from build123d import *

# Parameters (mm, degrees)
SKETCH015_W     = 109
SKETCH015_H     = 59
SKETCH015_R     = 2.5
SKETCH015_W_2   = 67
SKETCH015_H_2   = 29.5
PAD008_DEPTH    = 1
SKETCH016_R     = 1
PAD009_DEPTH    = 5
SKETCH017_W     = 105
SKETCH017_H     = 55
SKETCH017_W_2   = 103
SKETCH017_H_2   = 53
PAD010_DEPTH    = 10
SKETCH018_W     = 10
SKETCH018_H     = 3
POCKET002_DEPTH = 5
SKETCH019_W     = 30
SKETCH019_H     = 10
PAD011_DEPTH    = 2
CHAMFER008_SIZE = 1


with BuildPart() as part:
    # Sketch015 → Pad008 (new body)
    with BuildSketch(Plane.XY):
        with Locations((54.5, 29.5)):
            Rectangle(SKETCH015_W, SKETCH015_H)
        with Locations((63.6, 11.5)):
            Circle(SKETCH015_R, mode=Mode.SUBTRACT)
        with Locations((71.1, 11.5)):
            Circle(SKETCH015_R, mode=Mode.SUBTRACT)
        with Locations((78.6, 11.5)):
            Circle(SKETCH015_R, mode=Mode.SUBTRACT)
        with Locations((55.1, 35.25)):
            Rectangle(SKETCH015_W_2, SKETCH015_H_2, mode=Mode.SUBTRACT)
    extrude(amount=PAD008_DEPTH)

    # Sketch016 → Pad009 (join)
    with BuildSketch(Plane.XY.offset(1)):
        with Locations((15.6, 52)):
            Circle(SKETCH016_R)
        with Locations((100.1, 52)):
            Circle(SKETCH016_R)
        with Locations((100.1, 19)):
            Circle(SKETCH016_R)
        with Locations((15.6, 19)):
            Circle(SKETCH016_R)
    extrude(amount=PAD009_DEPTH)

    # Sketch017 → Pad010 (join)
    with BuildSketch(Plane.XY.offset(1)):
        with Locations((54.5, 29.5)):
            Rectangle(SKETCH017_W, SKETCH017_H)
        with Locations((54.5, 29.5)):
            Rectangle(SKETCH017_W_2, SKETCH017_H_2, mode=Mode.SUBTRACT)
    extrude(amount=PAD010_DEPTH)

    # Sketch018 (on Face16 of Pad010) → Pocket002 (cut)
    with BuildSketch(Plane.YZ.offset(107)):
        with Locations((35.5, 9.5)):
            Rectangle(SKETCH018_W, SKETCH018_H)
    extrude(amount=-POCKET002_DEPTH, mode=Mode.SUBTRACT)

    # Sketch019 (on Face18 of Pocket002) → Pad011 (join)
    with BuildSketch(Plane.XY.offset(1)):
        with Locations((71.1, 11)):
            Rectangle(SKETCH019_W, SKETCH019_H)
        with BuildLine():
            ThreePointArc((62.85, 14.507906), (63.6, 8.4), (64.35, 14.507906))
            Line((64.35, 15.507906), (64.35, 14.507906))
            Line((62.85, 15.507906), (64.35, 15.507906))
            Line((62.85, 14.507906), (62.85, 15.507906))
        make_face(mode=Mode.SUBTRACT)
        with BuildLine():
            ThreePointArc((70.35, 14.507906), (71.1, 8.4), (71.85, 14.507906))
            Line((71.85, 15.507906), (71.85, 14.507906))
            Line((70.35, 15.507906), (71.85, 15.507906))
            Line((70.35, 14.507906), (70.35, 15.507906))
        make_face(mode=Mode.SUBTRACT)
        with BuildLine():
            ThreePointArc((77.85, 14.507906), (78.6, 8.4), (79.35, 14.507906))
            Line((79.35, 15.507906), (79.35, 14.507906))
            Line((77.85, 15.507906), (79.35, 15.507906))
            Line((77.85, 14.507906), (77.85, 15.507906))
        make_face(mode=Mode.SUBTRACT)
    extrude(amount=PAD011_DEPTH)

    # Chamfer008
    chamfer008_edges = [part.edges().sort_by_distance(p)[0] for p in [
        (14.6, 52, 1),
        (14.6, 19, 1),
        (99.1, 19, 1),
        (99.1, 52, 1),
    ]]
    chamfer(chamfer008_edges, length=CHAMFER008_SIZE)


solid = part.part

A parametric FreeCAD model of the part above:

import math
import FreeCAD as App
import Part
import Sketcher


def edges_at(feature, points):
    """Names of the edges that pass closest to the given points."""
    edges = feature.Shape.Edges
    near = lambda p: min(range(len(edges)), key=lambda i: edges[i].distToShape(Part.Vertex(*p))[0])
    return sorted({f"Edge{near(p) + 1}" for p in points})

doc = App.newDocument("Part")
body = doc.addObject("PartDesign::Body", "Body")

# Sketch on XY plane
sketch1 = body.newObject("Sketcher::SketchObject", "Sketch")
sketch1.AttachmentSupport = (doc.getObject("XY_Plane"), [""])
sketch1.MapMode = "FlatFace"
sketch1.addGeometry(Part.LineSegment(App.Vector(0, 59, 0), App.Vector(0, 0, 0)), False)
sketch1.addGeometry(Part.LineSegment(App.Vector(0, 0, 0), App.Vector(109, 0, 0)), False)
sketch1.addGeometry(Part.LineSegment(App.Vector(109, 0, 0), App.Vector(109, 59, 0)), False)
sketch1.addGeometry(Part.LineSegment(App.Vector(109, 59, 0), App.Vector(0, 59, 0)), False)
sketch1.addGeometry(Part.Circle(App.Vector(63.6, 11.5, 0), App.Vector(0, 0, 1), 2.5), False)
sketch1.addGeometry(Part.Circle(App.Vector(71.1, 11.5, 0), App.Vector(0, 0, 1), 2.5), False)
sketch1.addGeometry(Part.Circle(App.Vector(78.6, 11.5, 0), App.Vector(0, 0, 1), 2.5), False)
sketch1.addGeometry(Part.LineSegment(App.Vector(88.6, 20.5, 0), App.Vector(21.6, 20.5, 0)), False)
sketch1.addGeometry(Part.LineSegment(App.Vector(21.6, 20.5, 0), App.Vector(21.6, 50, 0)), False)
sketch1.addGeometry(Part.LineSegment(App.Vector(21.6, 50, 0), App.Vector(88.6, 50, 0)), False)
sketch1.addGeometry(Part.LineSegment(App.Vector(88.6, 50, 0), App.Vector(88.6, 20.5, 0)), False)
sketch1.addConstraint(Sketcher.Constraint("Coincident", 0, 2, 1, 1))
sketch1.addConstraint(Sketcher.Constraint("Coincident", 1, 2, 2, 1))
sketch1.addConstraint(Sketcher.Constraint("Coincident", 2, 2, 3, 1))
sketch1.addConstraint(Sketcher.Constraint("Coincident", 3, 2, 0, 1))
sketch1.addConstraint(Sketcher.Constraint("Coincident", 7, 2, 8, 1))
sketch1.addConstraint(Sketcher.Constraint("Coincident", 8, 2, 9, 1))
sketch1.addConstraint(Sketcher.Constraint("Coincident", 9, 2, 10, 1))
sketch1.addConstraint(Sketcher.Constraint("Coincident", 10, 2, 7, 1))
sketch1.addConstraint(Sketcher.Constraint("Vertical", 0))
sketch1.addConstraint(Sketcher.Constraint("Horizontal", 1))
sketch1.addConstraint(Sketcher.Constraint("Vertical", 2))
sketch1.addConstraint(Sketcher.Constraint("Horizontal", 3))
sketch1.addConstraint(Sketcher.Constraint("Horizontal", 7))
sketch1.addConstraint(Sketcher.Constraint("Vertical", 8))
sketch1.addConstraint(Sketcher.Constraint("Horizontal", 9))
sketch1.addConstraint(Sketcher.Constraint("Vertical", 10))
sketch1.addConstraint(Sketcher.Constraint("Coincident", 0, 2, -1, 1))
sketch1.addConstraint(Sketcher.Constraint("Equal", 4, 5))
sketch1.addConstraint(Sketcher.Constraint("Equal", 5, 6))
sketch1.addConstraint(Sketcher.Constraint("Horizontal", 4, 3, 5, 3))
sketch1.addConstraint(Sketcher.Constraint("Horizontal", 5, 3, 6, 3))
sketch1.addConstraint(Sketcher.Constraint("Diameter", 4, 5.0))
sketch1.addConstraint(Sketcher.Constraint("DistanceX", 1, 1, 1, 2, 109.0))
sketch1.addConstraint(Sketcher.Constraint("DistanceX", 7, 2, 7, 1, 67.0))
sketch1.addConstraint(Sketcher.Constraint("DistanceY", 0, 2, 0, 1, 59.0))
sketch1.addConstraint(Sketcher.Constraint("DistanceY", 8, 1, 8, 2, 29.5))
sketch1.addConstraint(Sketcher.Constraint("DistanceY", -1, 1, 8, 2, 50.0))
sketch1.addConstraint(Sketcher.Constraint("DistanceX", 4, 3, 6, 3, 15.0))
sketch1.addConstraint(Sketcher.Constraint("DistanceX", 7, 2, 4, 3, 42.0))
sketch1.addConstraint(Sketcher.Constraint("DistanceY", 4, 3, 7, 2, 9.0))
sketch1.addConstraint(Sketcher.Constraint("DistanceX", -1, 1, 4, 3, 63.6))
sketch1.addConstraint(Sketcher.Constraint("DistanceX", -1, 1, 5, 3, 71.1))
pad1 = body.newObject("PartDesign::Pad", "Pad")
pad1.Profile = sketch1
pad1.Length = 1

# Sketch on XY plane
sketch2 = body.newObject("Sketcher::SketchObject", "Sketch001")
sketch2.AttachmentSupport = (doc.getObject("XY_Plane"), [""])
sketch2.MapMode = "FlatFace"
sketch2.AttachmentOffset = App.Placement(App.Vector(0, 0, 1), App.Rotation())
sketch2.addGeometry(Part.Circle(App.Vector(15.6, 52, 0), App.Vector(0, 0, 1), 1), False)
sketch2.addGeometry(Part.Circle(App.Vector(100.1, 52, 0), App.Vector(0, 0, 1), 1), False)
sketch2.addGeometry(Part.Circle(App.Vector(100.1, 19, 0), App.Vector(0, 0, 1), 1), False)
sketch2.addGeometry(Part.Circle(App.Vector(15.6, 19, 0), App.Vector(0, 0, 1), 1), False)
sketch2.addConstraint(Sketcher.Constraint("Equal", 0, 1))
sketch2.addConstraint(Sketcher.Constraint("Equal", 1, 2))
sketch2.addConstraint(Sketcher.Constraint("Equal", 2, 3))
sketch2.addConstraint(Sketcher.Constraint("Horizontal", 0, 3, 1, 3))
sketch2.addConstraint(Sketcher.Constraint("Horizontal", 2, 3, 3, 3))
sketch2.addConstraint(Sketcher.Constraint("Vertical", 1, 3, 2, 3))
sketch2.addConstraint(Sketcher.Constraint("Vertical", 0, 3, 3, 3))
sketch2.addConstraint(Sketcher.Constraint("Diameter", 0, 2.0))
sketch2.addConstraint(Sketcher.Constraint("DistanceY", -1, 1, 0, 3, 52.0))
sketch2.addConstraint(Sketcher.Constraint("DistanceY", -1, 1, 2, 3, 19.0))
sketch2.addConstraint(Sketcher.Constraint("DistanceX", -1, 1, 0, 3, 15.6))
sketch2.addConstraint(Sketcher.Constraint("DistanceX", -1, 1, 1, 3, 100.1))
pad2 = body.newObject("PartDesign::Pad", "Pad001")
pad2.Profile = sketch2
pad2.Length = 5

# Sketch on XY plane
sketch3 = body.newObject("Sketcher::SketchObject", "Sketch002")
sketch3.AttachmentSupport = (doc.getObject("XY_Plane"), [""])
sketch3.MapMode = "FlatFace"
sketch3.AttachmentOffset = App.Placement(App.Vector(0, 0, 1), App.Rotation())
sketch3.addGeometry(Part.LineSegment(App.Vector(2, 57, 0), App.Vector(2, 2, 0)), False)
sketch3.addGeometry(Part.LineSegment(App.Vector(2, 2, 0), App.Vector(107, 2, 0)), False)
sketch3.addGeometry(Part.LineSegment(App.Vector(107, 2, 0), App.Vector(107, 57, 0)), False)
sketch3.addGeometry(Part.LineSegment(App.Vector(107, 57, 0), App.Vector(2, 57, 0)), False)
sketch3.addGeometry(Part.LineSegment(App.Vector(106, 3, 0), App.Vector(3, 3, 0)), False)
sketch3.addGeometry(Part.LineSegment(App.Vector(3, 3, 0), App.Vector(3, 56, 0)), False)
sketch3.addGeometry(Part.LineSegment(App.Vector(3, 56, 0), App.Vector(106, 56, 0)), False)
sketch3.addGeometry(Part.LineSegment(App.Vector(106, 56, 0), App.Vector(106, 3, 0)), False)
sketch3.addConstraint(Sketcher.Constraint("Coincident", 0, 2, 1, 1))
sketch3.addConstraint(Sketcher.Constraint("Coincident", 1, 2, 2, 1))
sketch3.addConstraint(Sketcher.Constraint("Coincident", 2, 2, 3, 1))
sketch3.addConstraint(Sketcher.Constraint("Coincident", 3, 2, 0, 1))
sketch3.addConstraint(Sketcher.Constraint("Coincident", 4, 2, 5, 1))
sketch3.addConstraint(Sketcher.Constraint("Coincident", 5, 2, 6, 1))
sketch3.addConstraint(Sketcher.Constraint("Coincident", 6, 2, 7, 1))
sketch3.addConstraint(Sketcher.Constraint("Coincident", 7, 2, 4, 1))
sketch3.addConstraint(Sketcher.Constraint("Vertical", 0))
sketch3.addConstraint(Sketcher.Constraint("Horizontal", 1))
sketch3.addConstraint(Sketcher.Constraint("Vertical", 2))
sketch3.addConstraint(Sketcher.Constraint("Horizontal", 3))
sketch3.addConstraint(Sketcher.Constraint("Horizontal", 4))
sketch3.addConstraint(Sketcher.Constraint("Vertical", 5))
sketch3.addConstraint(Sketcher.Constraint("Horizontal", 6))
sketch3.addConstraint(Sketcher.Constraint("Vertical", 7))
sketch3.addConstraint(Sketcher.Constraint("DistanceX", 1, 1, 1, 2, 105.0))
sketch3.addConstraint(Sketcher.Constraint("DistanceX", 4, 2, 4, 1, 103.0))
sketch3.addConstraint(Sketcher.Constraint("DistanceY", 0, 2, 0, 1, 55.0))
sketch3.addConstraint(Sketcher.Constraint("DistanceY", 5, 1, 5, 2, 53.0))
sketch3.addConstraint(Sketcher.Constraint("DistanceX", -1, 1, 0, 2, 2.0))
sketch3.addConstraint(Sketcher.Constraint("DistanceY", -1, 1, 0, 2, 2.0))
sketch3.addConstraint(Sketcher.Constraint("DistanceX", -1, 1, 4, 2, 3.0))
sketch3.addConstraint(Sketcher.Constraint("DistanceY", -1, 1, 4, 2, 3.0))
pad3 = body.newObject("PartDesign::Pad", "Pad002")
pad3.Profile = sketch3
pad3.Length = 10

# Sketch on YZ plane
sketch4 = body.newObject("Sketcher::SketchObject", "Sketch003")
sketch4.AttachmentSupport = (doc.getObject("YZ_Plane"), [""])
sketch4.MapMode = "FlatFace"
sketch4.AttachmentOffset = App.Placement(App.Vector(0, 0, 107), App.Rotation())
sketch4.addGeometry(Part.LineSegment(App.Vector(30.5, 11, 0), App.Vector(30.5, 8, 0)), False)
sketch4.addGeometry(Part.LineSegment(App.Vector(30.5, 8, 0), App.Vector(40.5, 8, 0)), False)
sketch4.addGeometry(Part.LineSegment(App.Vector(40.5, 8, 0), App.Vector(40.5, 11, 0)), False)
sketch4.addGeometry(Part.LineSegment(App.Vector(40.5, 11, 0), App.Vector(30.5, 11, 0)), False)
sketch4.addConstraint(Sketcher.Constraint("Coincident", 0, 2, 1, 1))
sketch4.addConstraint(Sketcher.Constraint("Coincident", 1, 2, 2, 1))
sketch4.addConstraint(Sketcher.Constraint("Coincident", 2, 2, 3, 1))
sketch4.addConstraint(Sketcher.Constraint("Coincident", 3, 2, 0, 1))
sketch4.addConstraint(Sketcher.Constraint("Vertical", 0))
sketch4.addConstraint(Sketcher.Constraint("Horizontal", 1))
sketch4.addConstraint(Sketcher.Constraint("Vertical", 2))
sketch4.addConstraint(Sketcher.Constraint("Horizontal", 3))
sketch4.addConstraint(Sketcher.Constraint("DistanceX", 1, 1, 1, 2, 10.0))
sketch4.addConstraint(Sketcher.Constraint("DistanceY", 0, 2, 0, 1, 3.0))
sketch4.addConstraint(Sketcher.Constraint("DistanceY", -1, 1, 0, 2, 8.0))
sketch4.addConstraint(Sketcher.Constraint("DistanceX", -1, 1, 0, 2, 30.5))
pocket1 = body.newObject("PartDesign::Pocket", "Pocket")
pocket1.Profile = sketch4
pocket1.Length = 5

# Sketch on XY plane
sketch5 = body.newObject("Sketcher::SketchObject", "Sketch004")
sketch5.AttachmentSupport = (doc.getObject("XY_Plane"), [""])
sketch5.MapMode = "FlatFace"
sketch5.AttachmentOffset = App.Placement(App.Vector(0, 0, 1), App.Rotation())
sketch5.addGeometry(Part.LineSegment(App.Vector(56.1, 16, 0), App.Vector(56.1, 6, 0)), False)
sketch5.addGeometry(Part.LineSegment(App.Vector(56.1, 6, 0), App.Vector(86.1, 6, 0)), False)
sketch5.addGeometry(Part.LineSegment(App.Vector(86.1, 6, 0), App.Vector(86.1, 16, 0)), False)
sketch5.addGeometry(Part.LineSegment(App.Vector(86.1, 16, 0), App.Vector(56.1, 16, 0)), False)
sketch5.addGeometry(Part.ArcOfCircle(Part.Circle(App.Vector(63.6, 11.5, 0), App.Vector(0, 0, 1), 3.1), math.radians(104), math.radians(436)), False)
sketch5.addGeometry(Part.LineSegment(App.Vector(62.9, 14.5, 0), App.Vector(62.9, 15.5, 0)), False)
sketch5.addGeometry(Part.LineSegment(App.Vector(62.9, 15.5, 0), App.Vector(64.3, 15.5, 0)), False)
sketch5.addGeometry(Part.LineSegment(App.Vector(64.3, 15.5, 0), App.Vector(64.3, 14.5, 0)), False)
sketch5.addGeometry(Part.ArcOfCircle(Part.Circle(App.Vector(71.1, 11.5, 0), App.Vector(0, 0, 1), 3.1), math.radians(104), math.radians(436)), False)
sketch5.addGeometry(Part.LineSegment(App.Vector(70.3, 14.5, 0), App.Vector(70.3, 15.5, 0)), False)
sketch5.addGeometry(Part.LineSegment(App.Vector(70.3, 15.5, 0), App.Vector(71.8, 15.5, 0)), False)
sketch5.addGeometry(Part.LineSegment(App.Vector(71.8, 15.5, 0), App.Vector(71.8, 14.5, 0)), False)
sketch5.addGeometry(Part.ArcOfCircle(Part.Circle(App.Vector(78.6, 11.5, 0), App.Vector(0, 0, 1), 3.1), math.radians(104), math.radians(436)), False)
sketch5.addGeometry(Part.LineSegment(App.Vector(77.8, 14.5, 0), App.Vector(77.8, 15.5, 0)), False)
sketch5.addGeometry(Part.LineSegment(App.Vector(77.8, 15.5, 0), App.Vector(79.3, 15.5, 0)), False)
sketch5.addGeometry(Part.LineSegment(App.Vector(79.3, 15.5, 0), App.Vector(79.3, 14.5, 0)), False)
sketch5.addConstraint(Sketcher.Constraint("Coincident", 0, 2, 1, 1))
sketch5.addConstraint(Sketcher.Constraint("Coincident", 1, 2, 2, 1))
sketch5.addConstraint(Sketcher.Constraint("Coincident", 2, 2, 3, 1))
sketch5.addConstraint(Sketcher.Constraint("Coincident", 3, 2, 0, 1))
sketch5.addConstraint(Sketcher.Constraint("Coincident", 4, 1, 5, 1))
sketch5.addConstraint(Sketcher.Constraint("Coincident", 5, 2, 6, 1))
sketch5.addConstraint(Sketcher.Constraint("Coincident", 6, 2, 7, 1))
sketch5.addConstraint(Sketcher.Constraint("Coincident", 7, 2, 4, 2))
sketch5.addConstraint(Sketcher.Constraint("Coincident", 8, 1, 9, 1))
sketch5.addConstraint(Sketcher.Constraint("Coincident", 9, 2, 10, 1))
sketch5.addConstraint(Sketcher.Constraint("Coincident", 10, 2, 11, 1))
sketch5.addConstraint(Sketcher.Constraint("Coincident", 11, 2, 8, 2))
sketch5.addConstraint(Sketcher.Constraint("Coincident", 12, 1, 13, 1))
sketch5.addConstraint(Sketcher.Constraint("Coincident", 13, 2, 14, 1))
sketch5.addConstraint(Sketcher.Constraint("Coincident", 14, 2, 15, 1))
sketch5.addConstraint(Sketcher.Constraint("Coincident", 15, 2, 12, 2))
sketch5.addConstraint(Sketcher.Constraint("Vertical", 0))
sketch5.addConstraint(Sketcher.Constraint("Horizontal", 1))
sketch5.addConstraint(Sketcher.Constraint("Vertical", 2))
sketch5.addConstraint(Sketcher.Constraint("Horizontal", 3))
sketch5.addConstraint(Sketcher.Constraint("Vertical", 5))
sketch5.addConstraint(Sketcher.Constraint("Horizontal", 6))
sketch5.addConstraint(Sketcher.Constraint("Vertical", 7))
sketch5.addConstraint(Sketcher.Constraint("Vertical", 9))
sketch5.addConstraint(Sketcher.Constraint("Horizontal", 10))
sketch5.addConstraint(Sketcher.Constraint("Vertical", 11))
sketch5.addConstraint(Sketcher.Constraint("Vertical", 13))
sketch5.addConstraint(Sketcher.Constraint("Horizontal", 14))
sketch5.addConstraint(Sketcher.Constraint("Vertical", 15))
sketch5.addConstraint(Sketcher.Constraint("Equal", 4, 8))
sketch5.addConstraint(Sketcher.Constraint("Equal", 8, 12))
sketch5.addConstraint(Sketcher.Constraint("Horizontal", 4, 3, 8, 3))
sketch5.addConstraint(Sketcher.Constraint("Horizontal", 8, 3, 12, 3))
sketch5.addConstraint(Sketcher.Constraint("Horizontal", 4, 1, 7, 2))
sketch5.addConstraint(Sketcher.Constraint("Horizontal", 7, 2, 8, 1))
sketch5.addConstraint(Sketcher.Constraint("Horizontal", 6, 2, 9, 2))
sketch5.addConstraint(Sketcher.Constraint("Horizontal", 8, 1, 11, 2))
sketch5.addConstraint(Sketcher.Constraint("Horizontal", 11, 2, 12, 1))
sketch5.addConstraint(Sketcher.Constraint("Horizontal", 10, 2, 13, 2))
sketch5.addConstraint(Sketcher.Constraint("Horizontal", 12, 1, 15, 2))
sketch5.addConstraint(Sketcher.Constraint("Radius", 4, 3.1))
sketch5.addConstraint(Sketcher.Constraint("DistanceX", 1, 1, 1, 2, 30.0))
sketch5.addConstraint(Sketcher.Constraint("DistanceY", 0, 2, 0, 1, 10.0))
sketch5.addConstraint(Sketcher.Constraint("DistanceY", 5, 1, 5, 2, 1.0))
sketch5.addConstraint(Sketcher.Constraint("DistanceX", 6, 1, 6, 2, 1.5))
sketch5.addConstraint(Sketcher.Constraint("DistanceY", -1, 1, 0, 2, 6.0))
sketch5.addConstraint(Sketcher.Constraint("DistanceX", 4, 3, 12, 3, 15.0))
sketch5.addConstraint(Sketcher.Constraint("DistanceX", 0, 2, 8, 3, 15.0))
sketch5.addConstraint(Sketcher.Constraint("DistanceX", 7, 2, 8, 1, 6.0))
sketch5.addConstraint(Sketcher.Constraint("DistanceX", -1, 1, 4, 3, 63.6))
sketch5.addConstraint(Sketcher.Constraint("DistanceY", -1, 1, 4, 3, 11.5))
pad4 = body.newObject("PartDesign::Pad", "Pad003")
pad4.Profile = sketch5
pad4.Length = 2
doc.recompute()

chamfer = body.newObject("PartDesign::Chamfer", "Chamfer")
chamfer.Base = (pad4, edges_at(pad4, [
    (14.6, 52, 1),
    (14.6, 19, 1),
    (99.1, 19, 1),
    (99.1, 52, 1),
]))
chamfer.Size = 1

doc.recompute()
